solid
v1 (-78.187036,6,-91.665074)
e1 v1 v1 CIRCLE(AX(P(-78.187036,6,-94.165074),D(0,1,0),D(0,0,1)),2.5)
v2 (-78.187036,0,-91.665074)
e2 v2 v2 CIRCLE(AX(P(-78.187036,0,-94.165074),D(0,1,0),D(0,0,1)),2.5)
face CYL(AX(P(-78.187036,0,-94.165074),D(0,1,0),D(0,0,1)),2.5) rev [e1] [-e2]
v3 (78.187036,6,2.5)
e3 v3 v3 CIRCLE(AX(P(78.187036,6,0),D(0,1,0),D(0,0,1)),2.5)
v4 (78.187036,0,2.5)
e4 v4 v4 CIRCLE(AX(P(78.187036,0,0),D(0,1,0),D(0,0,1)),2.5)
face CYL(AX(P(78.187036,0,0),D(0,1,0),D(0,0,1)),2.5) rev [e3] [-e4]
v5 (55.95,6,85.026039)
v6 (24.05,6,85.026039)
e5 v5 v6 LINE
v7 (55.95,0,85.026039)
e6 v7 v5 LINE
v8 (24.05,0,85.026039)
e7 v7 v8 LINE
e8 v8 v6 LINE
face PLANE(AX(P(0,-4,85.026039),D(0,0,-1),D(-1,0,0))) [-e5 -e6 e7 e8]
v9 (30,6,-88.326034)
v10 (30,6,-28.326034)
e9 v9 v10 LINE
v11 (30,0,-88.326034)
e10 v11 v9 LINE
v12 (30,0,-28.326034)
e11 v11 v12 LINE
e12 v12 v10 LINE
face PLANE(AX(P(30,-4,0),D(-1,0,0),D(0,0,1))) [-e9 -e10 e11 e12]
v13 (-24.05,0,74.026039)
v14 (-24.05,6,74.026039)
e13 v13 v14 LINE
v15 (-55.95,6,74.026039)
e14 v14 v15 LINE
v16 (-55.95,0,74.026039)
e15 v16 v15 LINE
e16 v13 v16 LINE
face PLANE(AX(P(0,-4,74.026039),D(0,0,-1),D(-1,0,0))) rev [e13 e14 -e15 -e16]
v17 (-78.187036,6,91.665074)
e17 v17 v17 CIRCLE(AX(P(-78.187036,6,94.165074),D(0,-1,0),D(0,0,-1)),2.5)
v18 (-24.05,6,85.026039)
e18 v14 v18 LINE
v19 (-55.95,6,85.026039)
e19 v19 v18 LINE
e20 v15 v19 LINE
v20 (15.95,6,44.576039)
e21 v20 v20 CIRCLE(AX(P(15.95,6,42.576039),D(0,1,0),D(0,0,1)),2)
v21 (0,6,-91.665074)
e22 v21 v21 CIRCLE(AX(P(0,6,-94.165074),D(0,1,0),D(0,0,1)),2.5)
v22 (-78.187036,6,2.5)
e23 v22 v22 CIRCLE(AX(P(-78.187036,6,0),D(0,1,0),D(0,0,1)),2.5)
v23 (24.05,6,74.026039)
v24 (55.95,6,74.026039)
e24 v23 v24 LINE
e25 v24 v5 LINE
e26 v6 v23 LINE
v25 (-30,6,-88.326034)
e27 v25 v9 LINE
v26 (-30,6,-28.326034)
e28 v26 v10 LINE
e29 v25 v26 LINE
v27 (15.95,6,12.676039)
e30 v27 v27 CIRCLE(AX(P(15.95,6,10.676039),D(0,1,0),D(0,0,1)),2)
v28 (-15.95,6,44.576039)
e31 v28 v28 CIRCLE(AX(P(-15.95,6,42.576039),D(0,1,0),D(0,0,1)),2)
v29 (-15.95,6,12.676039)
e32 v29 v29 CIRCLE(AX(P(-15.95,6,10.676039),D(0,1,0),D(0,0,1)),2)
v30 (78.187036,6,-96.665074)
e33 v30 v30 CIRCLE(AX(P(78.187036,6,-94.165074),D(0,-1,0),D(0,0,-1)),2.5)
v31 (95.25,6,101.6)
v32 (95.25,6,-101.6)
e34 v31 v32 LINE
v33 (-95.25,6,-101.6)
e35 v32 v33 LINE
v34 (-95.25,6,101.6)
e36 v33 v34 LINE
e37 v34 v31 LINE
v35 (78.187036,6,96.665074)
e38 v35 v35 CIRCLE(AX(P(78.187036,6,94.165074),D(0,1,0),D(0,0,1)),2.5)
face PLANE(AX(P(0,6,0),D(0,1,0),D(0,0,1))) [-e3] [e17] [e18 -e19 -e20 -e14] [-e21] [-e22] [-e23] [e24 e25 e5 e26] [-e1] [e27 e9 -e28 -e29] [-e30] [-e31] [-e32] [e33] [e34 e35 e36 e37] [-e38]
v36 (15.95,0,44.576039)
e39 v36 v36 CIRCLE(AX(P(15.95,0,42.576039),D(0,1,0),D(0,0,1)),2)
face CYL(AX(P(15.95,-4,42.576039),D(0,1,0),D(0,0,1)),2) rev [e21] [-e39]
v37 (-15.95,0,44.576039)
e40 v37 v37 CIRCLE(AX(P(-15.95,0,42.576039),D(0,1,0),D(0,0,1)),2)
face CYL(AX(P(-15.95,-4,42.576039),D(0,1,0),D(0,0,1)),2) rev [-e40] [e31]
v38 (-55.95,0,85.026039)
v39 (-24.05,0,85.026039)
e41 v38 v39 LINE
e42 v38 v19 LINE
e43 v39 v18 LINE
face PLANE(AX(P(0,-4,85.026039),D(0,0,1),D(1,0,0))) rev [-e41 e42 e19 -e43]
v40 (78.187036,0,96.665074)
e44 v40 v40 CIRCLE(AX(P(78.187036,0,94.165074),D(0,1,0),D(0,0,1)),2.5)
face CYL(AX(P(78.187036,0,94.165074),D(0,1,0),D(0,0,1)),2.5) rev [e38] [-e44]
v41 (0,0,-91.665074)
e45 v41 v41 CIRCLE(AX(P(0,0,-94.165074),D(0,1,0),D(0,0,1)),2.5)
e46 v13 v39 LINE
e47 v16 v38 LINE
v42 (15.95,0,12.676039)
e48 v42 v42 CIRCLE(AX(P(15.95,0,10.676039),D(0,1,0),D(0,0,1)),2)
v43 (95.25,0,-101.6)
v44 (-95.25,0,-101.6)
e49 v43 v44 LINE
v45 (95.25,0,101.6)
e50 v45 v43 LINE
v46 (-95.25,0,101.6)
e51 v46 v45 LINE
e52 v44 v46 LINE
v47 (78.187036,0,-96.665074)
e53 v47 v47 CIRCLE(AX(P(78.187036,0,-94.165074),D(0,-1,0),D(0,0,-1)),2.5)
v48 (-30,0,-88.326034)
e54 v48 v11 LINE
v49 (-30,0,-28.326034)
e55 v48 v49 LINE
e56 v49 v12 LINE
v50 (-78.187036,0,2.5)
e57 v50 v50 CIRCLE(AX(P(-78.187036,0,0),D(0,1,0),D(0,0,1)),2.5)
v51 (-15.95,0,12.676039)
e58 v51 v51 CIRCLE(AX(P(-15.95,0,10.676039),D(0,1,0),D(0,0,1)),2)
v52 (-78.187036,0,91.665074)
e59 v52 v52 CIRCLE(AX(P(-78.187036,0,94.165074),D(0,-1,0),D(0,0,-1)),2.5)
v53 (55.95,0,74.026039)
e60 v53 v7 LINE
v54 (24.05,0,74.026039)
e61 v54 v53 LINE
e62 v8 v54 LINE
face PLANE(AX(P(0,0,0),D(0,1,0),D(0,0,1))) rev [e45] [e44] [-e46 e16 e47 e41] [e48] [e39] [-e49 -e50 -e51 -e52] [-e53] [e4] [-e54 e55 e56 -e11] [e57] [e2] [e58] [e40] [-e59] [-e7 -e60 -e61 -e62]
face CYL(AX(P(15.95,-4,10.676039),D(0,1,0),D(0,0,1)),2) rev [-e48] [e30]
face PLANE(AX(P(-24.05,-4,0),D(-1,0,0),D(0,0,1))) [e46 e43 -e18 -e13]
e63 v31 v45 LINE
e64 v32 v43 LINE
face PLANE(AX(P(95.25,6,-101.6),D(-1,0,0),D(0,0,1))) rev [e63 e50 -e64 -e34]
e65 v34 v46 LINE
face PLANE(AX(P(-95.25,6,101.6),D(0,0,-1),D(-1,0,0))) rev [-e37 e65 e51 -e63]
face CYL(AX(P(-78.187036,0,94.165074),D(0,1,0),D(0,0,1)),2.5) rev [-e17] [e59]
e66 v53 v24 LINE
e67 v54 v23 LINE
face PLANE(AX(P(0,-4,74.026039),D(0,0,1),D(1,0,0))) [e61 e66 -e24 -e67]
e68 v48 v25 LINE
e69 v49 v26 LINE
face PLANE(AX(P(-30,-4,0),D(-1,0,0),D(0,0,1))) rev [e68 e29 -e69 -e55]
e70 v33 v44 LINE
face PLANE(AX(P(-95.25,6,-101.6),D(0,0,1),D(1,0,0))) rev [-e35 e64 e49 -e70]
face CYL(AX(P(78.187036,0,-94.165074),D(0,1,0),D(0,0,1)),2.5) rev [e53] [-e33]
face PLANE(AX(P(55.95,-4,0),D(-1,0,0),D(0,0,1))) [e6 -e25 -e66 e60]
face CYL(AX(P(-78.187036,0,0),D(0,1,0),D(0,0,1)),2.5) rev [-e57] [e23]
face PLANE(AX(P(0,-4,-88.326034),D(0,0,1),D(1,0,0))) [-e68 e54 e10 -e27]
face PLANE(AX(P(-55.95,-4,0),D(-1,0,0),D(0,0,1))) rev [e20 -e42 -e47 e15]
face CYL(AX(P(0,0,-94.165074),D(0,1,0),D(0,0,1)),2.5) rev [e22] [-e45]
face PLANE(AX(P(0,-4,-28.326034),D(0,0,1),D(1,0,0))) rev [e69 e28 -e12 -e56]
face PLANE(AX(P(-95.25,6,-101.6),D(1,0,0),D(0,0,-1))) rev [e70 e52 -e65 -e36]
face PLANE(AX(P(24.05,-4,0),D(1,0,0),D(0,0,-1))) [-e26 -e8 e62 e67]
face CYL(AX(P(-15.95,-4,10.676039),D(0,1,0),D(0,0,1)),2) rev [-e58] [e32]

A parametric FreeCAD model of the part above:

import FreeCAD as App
import Part
import Sketcher

V = App.Vector
Q = App.Units.Quantity


def add_polygon(sketch, points):
    """Adds a closed chain of lines whose ends are joined by coincident constraints."""
    first, n = sketch.GeometryCount, len(points)
    for a, b in zip(points, points[1:] + points[:1]):
        sketch.addGeometry(Part.LineSegment(App.Vector(*a, 0), App.Vector(*b, 0)), False)
    for i in range(n):
        sketch.addConstraint(Sketcher.Constraint("Coincident", first + i, 2, first + (i + 1) % n, 1))

doc = App.newDocument("Part")
body = doc.addObject("PartDesign::Body", "Body")

sketch1 = body.newObject("Sketcher::SketchObject", "Sketch")
sketch1.AttachmentSupport = (doc.getObject("XZ_Plane"), [""])
sketch1.MapMode = "FlatFace"
add_polygon(sketch1, [(-95.25, -101.6), (-95.25, 101.6), (95.25, 101.6), (95.25, -101.6)])
sketch1.addConstraint(Sketcher.Constraint("Vertical", 0))
sketch1.addConstraint(Sketcher.Constraint("Horizontal", 1))
sketch1.addConstraint(Sketcher.Constraint("Vertical", 2))
sketch1.addConstraint(Sketcher.Constraint("Horizontal", 3))
sketch1.addConstraint(Sketcher.Constraint("Symmetric", 0, 2, 2, 2, -1, 1))
sketch1.addConstraint(Sketcher.Constraint("DistanceX", 1, 1, 1, 2, Q("190.5 mm")))
sketch1.addConstraint(Sketcher.Constraint("DistanceY", 0, 1, 0, 2, Q("203.2 mm")))
pad1 = body.newObject("PartDesign::Pad", "Pad")
pad1.Profile = sketch1
pad1.Length = 6
pad1.Reversed = True

sketch2 = body.newObject("Sketcher::SketchObject", "Sketch001")
sketch2.AttachmentSupport = (doc.getObject("XZ_Plane"), [""])
sketch2.MapMode = "FlatFace"
sketch2.AttachmentOffset = App.Placement(V(0, 0, -6), App.Rotation())
sketch2.addGeometry(Part.Circle(V(-78.187036, -94.165074, 0), V(0, 0, 1), 2.5), False)
sketch2.addGeometry(Part.Circle(V(0, -94.165074, 0), V(0, 0, 1), 2.5), False)
sketch2.addGeometry(Part.Circle(V(78.187036, 0, 0), V(0, 0, 1), 2.5), False)
sketch2.addGeometry(Part.Circle(V(-78.187036, 0, 0), V(0, 0, 1), 2.5), False)
sketch2.addGeometry(Part.Circle(V(78.187036, -94.165074, 0), V(0, 0, 1), 2.5), False)
sketch2.addGeometry(Part.Circle(V(-78.187036, 94.165074, 0), V(0, 0, 1), 2.5), False)
sketch2.addGeometry(Part.Circle(V(78.187036, 94.165074, 0), V(0, 0, 1), 2.5), False)
sketch2.addConstraint(Sketcher.Constraint("Equal", 0, 1))
sketch2.addConstraint(Sketcher.Constraint("Equal", 1, 2))
sketch2.addConstraint(Sketcher.Constraint("Equal", 2, 3))
sketch2.addConstraint(Sketcher.Constraint("Equal", 3, 4))
sketch2.addConstraint(Sketcher.Constraint("Equal", 4, 5))
sketch2.addConstraint(Sketcher.Constraint("Equal", 5, 6))
sketch2.addConstraint(Sketcher.Constraint("Symmetric", 2, 3, 3, 3, -1, 1))
sketch2.addConstraint(Sketcher.Constraint("Symmetric", 4, 3, 5, 3, -1, 1))
sketch2.addConstraint(Sketcher.Constraint("Symmetric", 0, 3, 6, 3, -1, 1))
sketch2.addConstraint(Sketcher.Constraint("Symmetric", 0, 3, 4, 3, -2))
sketch2.addConstraint(Sketcher.Constraint("PointOnObject", 1, 3, -2))
sketch2.addConstraint(Sketcher.Constraint("PointOnObject", 2, 3, -1))
sketch2.addConstraint(Sketcher.Constraint("Horizontal", 0, 3, 1, 3))
sketch2.addConstraint(Sketcher.Constraint("Vertical", 0, 3, 3, 3))
sketch2.addConstraint(Sketcher.Constraint("Diameter", 0, Q("5 mm")))
sketch2.addConstraint(Sketcher.Constraint("DistanceX", 0, 3, -1, 1, Q("78.187036 mm")))
sketch2.addConstraint(Sketcher.Constraint("DistanceY", 0, 3, -1, 1, Q("94.165074 mm")))
pocket1 = body.newObject("PartDesign::Pocket", "Pocket")
pocket1.Profile = sketch2
pocket1.Type = "ThroughAll"
pocket1.Reversed = True

sketch3 = body.newObject("Sketcher::SketchObject", "Sketch002")
sketch3.AttachmentSupport = (doc.getObject("XZ_Plane"), [""])
sketch3.MapMode = "FlatFace"
sketch3.AttachmentOffset = App.Placement(V(0, 0, -6), App.Rotation())
add_polygon(sketch3, [(-55.95, 74.026039), (-55.95, 85.026039), (-24.05, 85.026039), (-24.05, 74.026039)])
add_polygon(sketch3, [(-30, -28.326034), (30, -28.326034), (30, -88.326034), (-30, -88.326034)])
add_polygon(sketch3, [(24.05, 74.026039), (24.05, 85.026039), (55.95, 85.026039), (55.95, 74.026039)])
sketch3.addGeometry(Part.Circle(V(15.95, 10.676039, 0), V(0, 0, 1), 2), False)
sketch3.addGeometry(Part.Circle(V(-15.95, 10.676039, 0), V(0, 0, 1), 2), False)
sketch3.addGeometry(Part.Circle(V(-15.95, 42.576039, 0), V(0, 0, 1), 2), False)
sketch3.addGeometry(Part.Circle(V(15.95, 42.576039, 0), V(0, 0, 1), 2), False)
sketch3.addConstraint(Sketcher.Constraint("Vertical", 0))
sketch3.addConstraint(Sketcher.Constraint("Horizontal", 1))
sketch3.addConstraint(Sketcher.Constraint("Vertical", 2))
sketch3.addConstraint(Sketcher.Constraint("Horizontal", 3))
sketch3.addConstraint(Sketcher.Constraint("Horizontal", 4))
sketch3.addConstraint(Sketcher.Constraint("Vertical", 5))
sketch3.addConstraint(Sketcher.Constraint("Horizontal", 6))
sketch3.addConstraint(Sketcher.Constraint("Vertical", 7))
sketch3.addConstraint(Sketcher.Constraint("Vertical", 8))
sketch3.addConstraint(Sketcher.Constraint("Horizontal", 9))
sketch3.addConstraint(Sketcher.Constraint("Vertical", 10))
sketch3.addConstraint(Sketcher.Constraint("Horizontal", 11))
sketch3.addConstraint(Sketcher.Constraint("Equal", 12, 13))
sketch3.addConstraint(Sketcher.Constraint("Equal", 13, 14))
sketch3.addConstraint(Sketcher.Constraint("Equal", 14, 15))
sketch3.addConstraint(Sketcher.Constraint("Symmetric", 12, 3, 13, 3, -2))
sketch3.addConstraint(Sketcher.Constraint("Symmetric", 14, 3, 15, 3, -2))
sketch3.addConstraint(Sketcher.Constraint("Symmetric", 1, 2, 8, 2, -2))
sketch3.addConstraint(Sketcher.Constraint("Symmetric", 3, 2, 10, 2, -2))
sketch3.addConstraint(Sketcher.Constraint("Vertical", 13, 3, 14, 3))
sketch3.addConstraint(Sketcher.Constraint("Equal", 6, 5))
sketch3.addConstraint(Sketcher.Constraint("Diameter", 12, Q("4 mm")))
sketch3.addConstraint(Sketcher.Constraint("DistanceX", 4, 1, 4, 2, Q("60 mm")))
sketch3.addConstraint(Sketcher.Constraint("DistanceY", 0, 1, 0, 2, Q("11 mm")))
sketch3.addConstraint(Sketcher.Constraint("DistanceX", 1, 1, 1, 2, Q("31.9 mm")))
sketch3.addConstraint(Sketcher.Constraint("DistanceX", -1, 1, 4, 2, Q("30 mm")))
sketch3.addConstraint(Sketcher.Constraint("DistanceX", 0, 2, 14, 3, Q("40 mm")))
sketch3.addConstraint(Sketcher.Constraint("DistanceX", 1, 2, 15, 3, Q("40 mm")))
sketch3.addConstraint(Sketcher.Constraint("DistanceY", 13, 3, 14, 3, Q("31.9 mm")))
sketch3.addConstraint(Sketcher.Constraint("DistanceY", 14, 3, 0, 2, Q("42.45 mm")))
sketch3.addConstraint(Sketcher.Constraint("DistanceY", -1, 1, 12, 3, Q("10.676039 mm")))
sketch3.addConstraint(Sketcher.Constraint("DistanceY", 4, 2, -1, 1, Q("28.326034 mm")))
pocket2 = body.newObject("PartDesign::Pocket", "Pocket001")
pocket2.Profile = sketch3
pocket2.Length = 10
pocket2.Reversed = True

doc.recompute()
